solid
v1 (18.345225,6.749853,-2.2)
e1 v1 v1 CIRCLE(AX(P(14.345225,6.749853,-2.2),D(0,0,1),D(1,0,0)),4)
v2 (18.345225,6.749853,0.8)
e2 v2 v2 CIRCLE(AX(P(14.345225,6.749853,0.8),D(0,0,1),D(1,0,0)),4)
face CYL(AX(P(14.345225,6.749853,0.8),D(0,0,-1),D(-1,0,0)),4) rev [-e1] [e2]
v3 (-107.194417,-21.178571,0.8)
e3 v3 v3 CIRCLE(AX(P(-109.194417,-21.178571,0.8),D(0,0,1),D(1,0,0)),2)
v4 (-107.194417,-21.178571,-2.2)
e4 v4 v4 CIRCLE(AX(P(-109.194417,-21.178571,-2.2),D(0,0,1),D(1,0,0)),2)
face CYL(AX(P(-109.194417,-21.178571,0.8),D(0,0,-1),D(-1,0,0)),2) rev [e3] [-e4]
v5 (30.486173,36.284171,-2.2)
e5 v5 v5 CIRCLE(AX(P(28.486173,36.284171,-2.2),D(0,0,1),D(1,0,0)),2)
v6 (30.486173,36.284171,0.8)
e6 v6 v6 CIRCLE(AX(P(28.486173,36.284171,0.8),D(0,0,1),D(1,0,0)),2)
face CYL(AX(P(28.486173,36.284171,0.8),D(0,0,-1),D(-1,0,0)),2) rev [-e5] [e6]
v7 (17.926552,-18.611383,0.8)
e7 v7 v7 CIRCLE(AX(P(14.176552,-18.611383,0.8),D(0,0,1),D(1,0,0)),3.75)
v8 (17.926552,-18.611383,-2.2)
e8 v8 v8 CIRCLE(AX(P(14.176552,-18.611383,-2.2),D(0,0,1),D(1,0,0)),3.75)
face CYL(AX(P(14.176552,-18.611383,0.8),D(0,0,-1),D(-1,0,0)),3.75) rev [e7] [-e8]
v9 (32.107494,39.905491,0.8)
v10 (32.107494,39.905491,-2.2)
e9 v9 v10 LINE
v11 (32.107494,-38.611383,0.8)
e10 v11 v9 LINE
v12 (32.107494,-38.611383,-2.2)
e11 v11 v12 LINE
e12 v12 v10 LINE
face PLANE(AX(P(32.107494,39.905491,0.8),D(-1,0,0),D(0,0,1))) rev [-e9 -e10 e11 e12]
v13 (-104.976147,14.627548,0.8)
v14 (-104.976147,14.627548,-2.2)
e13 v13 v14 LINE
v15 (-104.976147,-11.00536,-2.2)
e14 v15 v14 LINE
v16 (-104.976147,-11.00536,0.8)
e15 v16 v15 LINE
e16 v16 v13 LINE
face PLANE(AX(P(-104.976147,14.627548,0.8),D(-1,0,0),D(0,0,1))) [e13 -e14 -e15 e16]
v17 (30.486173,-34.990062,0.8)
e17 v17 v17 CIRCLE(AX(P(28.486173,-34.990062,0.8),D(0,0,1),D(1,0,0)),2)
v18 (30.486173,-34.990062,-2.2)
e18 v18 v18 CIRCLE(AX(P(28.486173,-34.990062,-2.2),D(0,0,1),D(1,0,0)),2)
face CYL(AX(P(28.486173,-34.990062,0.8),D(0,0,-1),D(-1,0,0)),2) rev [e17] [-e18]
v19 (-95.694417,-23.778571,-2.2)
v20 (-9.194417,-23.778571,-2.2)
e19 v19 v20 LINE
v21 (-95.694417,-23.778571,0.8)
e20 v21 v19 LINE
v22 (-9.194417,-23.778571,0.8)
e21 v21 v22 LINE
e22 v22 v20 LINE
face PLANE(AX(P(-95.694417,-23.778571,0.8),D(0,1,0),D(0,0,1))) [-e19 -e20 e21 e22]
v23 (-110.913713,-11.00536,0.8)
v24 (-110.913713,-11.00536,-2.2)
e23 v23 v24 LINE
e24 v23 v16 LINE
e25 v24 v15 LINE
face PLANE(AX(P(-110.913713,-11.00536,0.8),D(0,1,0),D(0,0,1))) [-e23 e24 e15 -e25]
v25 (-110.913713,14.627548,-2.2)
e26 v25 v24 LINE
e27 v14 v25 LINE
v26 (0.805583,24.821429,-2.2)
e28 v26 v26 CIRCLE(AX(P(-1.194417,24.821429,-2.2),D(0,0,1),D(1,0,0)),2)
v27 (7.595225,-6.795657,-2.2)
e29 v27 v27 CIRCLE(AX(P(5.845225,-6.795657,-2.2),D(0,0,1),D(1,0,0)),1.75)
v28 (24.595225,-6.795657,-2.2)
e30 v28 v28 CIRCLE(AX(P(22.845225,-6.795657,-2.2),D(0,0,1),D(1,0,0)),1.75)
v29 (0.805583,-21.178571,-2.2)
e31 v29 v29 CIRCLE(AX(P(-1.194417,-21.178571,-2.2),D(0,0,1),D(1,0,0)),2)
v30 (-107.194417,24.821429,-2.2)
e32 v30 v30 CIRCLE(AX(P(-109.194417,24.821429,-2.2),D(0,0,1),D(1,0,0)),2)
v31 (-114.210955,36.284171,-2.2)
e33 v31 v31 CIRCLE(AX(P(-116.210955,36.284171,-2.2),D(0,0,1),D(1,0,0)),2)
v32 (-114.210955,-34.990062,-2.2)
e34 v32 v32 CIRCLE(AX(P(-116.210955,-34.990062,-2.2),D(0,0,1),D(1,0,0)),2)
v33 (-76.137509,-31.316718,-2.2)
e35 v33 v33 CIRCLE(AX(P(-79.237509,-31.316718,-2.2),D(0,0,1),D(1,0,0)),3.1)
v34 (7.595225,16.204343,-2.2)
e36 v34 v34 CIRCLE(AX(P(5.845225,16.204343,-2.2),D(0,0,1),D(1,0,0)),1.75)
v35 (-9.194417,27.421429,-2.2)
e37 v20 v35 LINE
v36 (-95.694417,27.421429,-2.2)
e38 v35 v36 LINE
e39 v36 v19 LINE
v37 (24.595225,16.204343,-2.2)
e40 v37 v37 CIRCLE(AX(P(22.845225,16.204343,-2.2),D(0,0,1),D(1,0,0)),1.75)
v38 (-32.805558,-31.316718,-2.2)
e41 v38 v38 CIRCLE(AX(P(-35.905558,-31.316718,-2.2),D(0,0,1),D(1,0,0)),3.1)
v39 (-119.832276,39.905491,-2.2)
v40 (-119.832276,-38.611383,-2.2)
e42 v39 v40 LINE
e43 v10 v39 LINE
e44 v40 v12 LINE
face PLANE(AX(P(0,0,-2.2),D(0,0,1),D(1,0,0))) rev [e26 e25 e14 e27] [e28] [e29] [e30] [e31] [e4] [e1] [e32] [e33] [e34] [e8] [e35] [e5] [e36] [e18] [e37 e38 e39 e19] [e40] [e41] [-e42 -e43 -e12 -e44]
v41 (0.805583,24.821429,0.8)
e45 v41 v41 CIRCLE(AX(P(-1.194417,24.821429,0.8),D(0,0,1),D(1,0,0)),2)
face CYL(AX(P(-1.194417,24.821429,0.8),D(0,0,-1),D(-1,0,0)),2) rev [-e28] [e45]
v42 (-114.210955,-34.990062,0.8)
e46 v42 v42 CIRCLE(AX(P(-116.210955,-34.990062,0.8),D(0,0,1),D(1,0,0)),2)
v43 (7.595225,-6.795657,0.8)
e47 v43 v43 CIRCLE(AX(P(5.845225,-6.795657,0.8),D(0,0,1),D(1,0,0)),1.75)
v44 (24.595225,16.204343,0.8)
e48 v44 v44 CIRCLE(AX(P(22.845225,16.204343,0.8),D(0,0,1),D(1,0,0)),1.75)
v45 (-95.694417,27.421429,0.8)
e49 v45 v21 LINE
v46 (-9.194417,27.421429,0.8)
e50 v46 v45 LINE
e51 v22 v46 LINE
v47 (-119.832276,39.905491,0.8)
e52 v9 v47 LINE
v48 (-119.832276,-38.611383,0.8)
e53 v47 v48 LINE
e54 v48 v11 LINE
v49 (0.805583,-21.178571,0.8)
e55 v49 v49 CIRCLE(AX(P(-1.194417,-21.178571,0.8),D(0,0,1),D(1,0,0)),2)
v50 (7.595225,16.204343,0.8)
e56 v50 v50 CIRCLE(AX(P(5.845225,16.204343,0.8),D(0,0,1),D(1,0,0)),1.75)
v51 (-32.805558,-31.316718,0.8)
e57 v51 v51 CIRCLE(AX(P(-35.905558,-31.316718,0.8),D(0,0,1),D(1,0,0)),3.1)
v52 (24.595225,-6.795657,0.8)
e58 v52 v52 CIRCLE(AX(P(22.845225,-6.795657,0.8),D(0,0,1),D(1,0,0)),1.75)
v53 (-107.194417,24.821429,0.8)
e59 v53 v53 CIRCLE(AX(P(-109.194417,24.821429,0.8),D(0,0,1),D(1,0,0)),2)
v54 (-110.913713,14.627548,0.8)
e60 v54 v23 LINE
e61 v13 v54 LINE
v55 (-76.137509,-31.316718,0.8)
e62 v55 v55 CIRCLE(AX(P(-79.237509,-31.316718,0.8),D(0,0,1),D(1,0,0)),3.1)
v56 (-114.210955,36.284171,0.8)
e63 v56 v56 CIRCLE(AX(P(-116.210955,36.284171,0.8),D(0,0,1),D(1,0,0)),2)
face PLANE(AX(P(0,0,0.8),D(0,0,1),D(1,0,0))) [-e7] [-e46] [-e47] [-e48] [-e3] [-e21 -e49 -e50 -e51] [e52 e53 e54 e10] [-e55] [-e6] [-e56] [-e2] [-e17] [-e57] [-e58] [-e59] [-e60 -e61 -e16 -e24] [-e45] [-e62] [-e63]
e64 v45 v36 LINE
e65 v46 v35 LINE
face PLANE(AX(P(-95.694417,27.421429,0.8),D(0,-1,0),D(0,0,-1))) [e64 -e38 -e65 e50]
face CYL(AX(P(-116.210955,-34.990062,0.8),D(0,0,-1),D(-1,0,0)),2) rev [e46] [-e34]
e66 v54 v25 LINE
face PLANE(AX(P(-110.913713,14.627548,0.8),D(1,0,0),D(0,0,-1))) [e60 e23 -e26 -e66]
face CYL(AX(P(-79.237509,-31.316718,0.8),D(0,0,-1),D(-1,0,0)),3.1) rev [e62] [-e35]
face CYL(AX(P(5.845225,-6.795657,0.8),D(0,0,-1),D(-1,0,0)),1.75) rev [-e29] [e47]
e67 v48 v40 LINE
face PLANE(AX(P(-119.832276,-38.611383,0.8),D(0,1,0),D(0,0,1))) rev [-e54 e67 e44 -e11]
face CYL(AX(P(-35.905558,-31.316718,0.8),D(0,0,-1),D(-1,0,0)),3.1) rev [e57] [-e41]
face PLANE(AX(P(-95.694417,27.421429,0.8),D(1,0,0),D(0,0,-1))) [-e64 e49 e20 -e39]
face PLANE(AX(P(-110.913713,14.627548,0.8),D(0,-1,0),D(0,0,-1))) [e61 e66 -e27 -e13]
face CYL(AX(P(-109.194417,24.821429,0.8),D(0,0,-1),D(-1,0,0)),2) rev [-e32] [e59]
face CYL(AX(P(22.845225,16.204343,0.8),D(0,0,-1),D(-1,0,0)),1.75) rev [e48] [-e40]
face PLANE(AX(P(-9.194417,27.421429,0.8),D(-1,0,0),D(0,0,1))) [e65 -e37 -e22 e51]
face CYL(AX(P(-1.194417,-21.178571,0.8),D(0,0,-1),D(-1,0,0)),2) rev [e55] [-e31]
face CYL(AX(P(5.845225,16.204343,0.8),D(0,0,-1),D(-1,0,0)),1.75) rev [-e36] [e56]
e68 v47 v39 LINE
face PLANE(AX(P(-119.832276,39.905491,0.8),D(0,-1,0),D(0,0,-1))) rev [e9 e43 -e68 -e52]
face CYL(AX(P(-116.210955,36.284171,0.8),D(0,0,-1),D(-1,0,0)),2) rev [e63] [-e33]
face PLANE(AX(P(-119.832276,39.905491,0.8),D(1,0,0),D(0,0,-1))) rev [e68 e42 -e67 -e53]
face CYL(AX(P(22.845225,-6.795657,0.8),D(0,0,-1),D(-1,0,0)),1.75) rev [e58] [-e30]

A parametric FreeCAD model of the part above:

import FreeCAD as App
import Part
import Sketcher
Q = App.Units.Quantity


def add_polygon(sketch, points):
    """Adds a closed chain of lines whose ends are joined by coincident constraints."""
    first, n = sketch.GeometryCount, len(points)
    for a, b in zip(points, points[1:] + points[:1]):
        sketch.addGeometry(Part.LineSegment(App.Vector(*a, 0), App.Vector(*b, 0)), False)
    for i in range(n):
        sketch.addConstraint(Sketcher.Constraint("Coincident", first + i, 2, first + (i + 1) % n, 1))

doc = App.newDocument("Part")
body = doc.addObject("PartDesign::Body", "Body")

sketch1 = body.newObject("Sketcher::SketchObject", "Sketch")
sketch1.AttachmentSupport = (doc.getObject("XY_Plane"), [""])
sketch1.MapMode = "FlatFace"
sketch1.AttachmentOffset = App.Placement(App.Vector(0, 0, -2.2), App.Rotation())
add_polygon(sketch1, [(-119.8, 39.9), (-119.8, -38.6), (32.1, -38.6), (32.1, 39.9)])
sketch1.addGeometry(Part.Circle(App.Vector(-116.2, -35, 0), App.Vector(0, 0, 1), 2), False)
sketch1.addGeometry(Part.Circle(App.Vector(-109.2, -21.2, 0), App.Vector(0, 0, 1), 2), False)
sketch1.addGeometry(Part.Circle(App.Vector(-79.2, -31.3, 0), App.Vector(0, 0, 1), 3.1), False)
sketch1.addGeometry(Part.Circle(App.Vector(-35.9, -31.3, 0), App.Vector(0, 0, 1), 3.1), False)
sketch1.addGeometry(Part.Circle(App.Vector(28.5, -35, 0), App.Vector(0, 0, 1), 2), False)
sketch1.addGeometry(Part.Circle(App.Vector(-1.2, -21.2, 0), App.Vector(0, 0, 1), 2), False)
sketch1.addGeometry(Part.Circle(App.Vector(14.2, -18.6, 0), App.Vector(0, 0, 1), 3.8), False)
sketch1.addGeometry(Part.Circle(App.Vector(5.8, -6.8, 0), App.Vector(0, 0, 1), 1.8), False)
sketch1.addGeometry(Part.Circle(App.Vector(22.8, -6.8, 0), App.Vector(0, 0, 1), 1.8), False)
add_polygon(sketch1, [(-105, -11), (-110.9, -11), (-110.9, 14.6), (-105, 14.6)])
add_polygon(sketch1, [(-9.2, -23.8), (-95.7, -23.8), (-95.7, 27.4), (-9.2, 27.4)])
sketch1.addGeometry(Part.Circle(App.Vector(-109.2, 24.8, 0), App.Vector(0, 0, 1), 2), False)
sketch1.addGeometry(Part.Circle(App.Vector(-116.2, 36.3, 0), App.Vector(0, 0, 1), 2), False)
sketch1.addGeometry(Part.Circle(App.Vector(14.3, 6.7, 0), App.Vector(0, 0, 1), 4), False)
sketch1.addGeometry(Part.Circle(App.Vector(5.8, 16.2, 0), App.Vector(0, 0, 1), 1.8), False)
sketch1.addGeometry(Part.Circle(App.Vector(22.8, 16.2, 0), App.Vector(0, 0, 1), 1.8), False)
sketch1.addGeometry(Part.Circle(App.Vector(-1.2, 24.8, 0), App.Vector(0, 0, 1), 2), False)
sketch1.addGeometry(Part.Circle(App.Vector(28.5, 36.3, 0), App.Vector(0, 0, 1), 2), False)
sketch1.addConstraint([
    Sketcher.Constraint("Vertical", 0),
    Sketcher.Constraint("Horizontal", 1),
    Sketcher.Constraint("Vertical", 2),
    Sketcher.Constraint("Horizontal", 3),
    Sketcher.Constraint("Horizontal", 13),
    Sketcher.Constraint("Vertical", 14),
    Sketcher.Constraint("Horizontal", 15),
    Sketcher.Constraint("Vertical", 16),
    Sketcher.Constraint("Horizontal", 17),
    Sketcher.Constraint("Vertical", 18),
    Sketcher.Constraint("Horizontal", 19),
    Sketcher.Constraint("Vertical", 20),
    Sketcher.Constraint("Equal", 4, 5),
    Sketcher.Constraint("Equal", 6, 7),
    Sketcher.Constraint("Equal", 5, 8),
    Sketcher.Constraint("Equal", 8, 9),
    Sketcher.Constraint("Equal", 11, 12),
    Sketcher.Constraint("Equal", 9, 21),
    Sketcher.Constraint("Equal", 21, 22),
    Sketcher.Constraint("Equal", 12, 24),
    Sketcher.Constraint("Equal", 24, 25),
    Sketcher.Constraint("Equal", 22, 26),
    Sketcher.Constraint("Equal", 26, 27),
    Sketcher.Constraint("Horizontal", 6, 3, 7, 3),
    Sketcher.Constraint("Horizontal", 4, 3, 8, 3),
    Sketcher.Constraint("Horizontal", 5, 3, 9, 3),
    Sketcher.Constraint("Horizontal", 11, 3, 12, 3),
    Sketcher.Constraint("Horizontal", 24, 3, 25, 3),
    Sketcher.Constraint("Horizontal", 21, 3, 26, 3),
    Sketcher.Constraint("Horizontal", 22, 3, 27, 3),
    Sketcher.Constraint("Vertical", 5, 3, 21, 3),
    Sketcher.Constraint("Vertical", 4, 3, 22, 3),
    Sketcher.Constraint("Vertical", 11, 3, 24, 3),
    Sketcher.Constraint("Vertical", 12, 3, 25, 3),
    Sketcher.Constraint("Vertical", 9, 3, 26, 3),
    Sketcher.Constraint("Vertical", 8, 3, 27, 3),
    Sketcher.Constraint("Diameter", 4, Q("4 mm")),
    Sketcher.Constraint("Diameter", 23, Q("8 mm")),
    Sketcher.Constraint("Diameter", 6, Q("6.2 mm")),
    Sketcher.Constraint("Diameter", 10, Q("7.5 mm")),
    Sketcher.Constraint("Diameter", 11, Q("3.5 mm")),
    Sketcher.Constraint("DistanceX", 17, 2, 17, 1, Q("86.5 mm")),
    Sketcher.Constraint("DistanceY", 18, 1, 18, 2, Q("51.2 mm")),
    Sketcher.Constraint("DistanceX", 5, 3, 9, 3, Q("108 mm")),
    Sketcher.Constraint("DistanceX", 11, 3, 12, 3, Q("17 mm")),
    Sketcher.Constraint("DistanceY", 5, 3, 21, 3, Q("46 mm")),
    Sketcher.Constraint("DistanceY", 11, 3, 24, 3, Q("23 mm")),
    Sketcher.Constraint("DistanceY", 1, 2, 10, 3, Q("20 mm")),
    Sketcher.Constraint("DistanceX", 19, 2, 26, 3, Q("8 mm")),
    Sketcher.Constraint("DistanceX", 11, 3, 23, 3, Q("8.5 mm")),
    Sketcher.Constraint("DistanceY", 17, 2, 5, 3, Q("2.6 mm")),
    Sketcher.Constraint("DistanceX", 1, 1, 1, 2, Q("151.939769 mm")),
    Sketcher.Constraint("DistanceX", 13, 2, 13, 1, Q("5.937566 mm")),
    Sketcher.Constraint("DistanceY", 0, 2, 0, 1, Q("78.516874 mm")),
    Sketcher.Constraint("DistanceY", 14, 1, 14, 2, Q("25.632908 mm")),
    Sketcher.Constraint("DistanceY", 5, 3, -1, 1, Q("21.178571 mm")),
    Sketcher.Constraint("DistanceX", 6, 3, -1, 1, Q("79.237509 mm")),
    Sketcher.Constraint("DistanceY", 6, 3, -1, 1, Q("31.316718 mm")),
    Sketcher.Constraint("DistanceY", -1, 1, 22, 3, Q("36.284171 mm")),
    Sketcher.Constraint("DistanceY", -1, 1, 2, 2, Q("39.905491 mm")),
    Sketcher.Constraint("DistanceY", 13, 2, -1, 1, Q("11.00536 mm")),
    Sketcher.Constraint("DistanceY", 4, 3, 5, 3, Q("13.811491 mm")),
    Sketcher.Constraint("DistanceX", 5, 3, 6, 3, Q("29.956909 mm")),
    Sketcher.Constraint("DistanceX", 6, 3, 7, 3, Q("43.331951 mm")),
    Sketcher.Constraint("DistanceX", 7, 3, 8, 3, Q("64.391731 mm")),
    Sketcher.Constraint("DistanceX", 4, 3, 8, 3, Q("144.697129 mm")),
    Sketcher.Constraint("DistanceX", 9, 3, 10, 3, Q("15.37097 mm")),
    Sketcher.Constraint("DistanceX", 11, 3, 8, 3, Q("22.640949 mm")),
    Sketcher.Constraint("DistanceY", 7, 3, 11, 3, Q("24.521061 mm")),
    Sketcher.Constraint("DistanceY", 11, 3, 23, 3, Q("13.54551 mm")),
    Sketcher.Constraint("DistanceX", 0, 2, 4, 3, Q("3.62132 mm")),
    Sketcher.Constraint("DistanceX", 4, 3, 13, 2, Q("5.297242 mm")),
])
pad1 = body.newObject("PartDesign::Pad", "Pad")
pad1.Profile = sketch1
pad1.Length = 3

doc.recompute()
